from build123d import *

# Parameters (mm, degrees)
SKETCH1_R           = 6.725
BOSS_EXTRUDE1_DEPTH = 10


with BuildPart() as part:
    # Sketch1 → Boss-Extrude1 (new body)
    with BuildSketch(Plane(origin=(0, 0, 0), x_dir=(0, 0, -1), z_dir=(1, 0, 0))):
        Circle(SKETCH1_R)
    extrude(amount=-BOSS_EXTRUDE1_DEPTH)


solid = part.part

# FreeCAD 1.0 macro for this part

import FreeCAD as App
import Part
import Sketcher

V = App.Vector

doc = App.newDocument("Part")
body = doc.addObject("PartDesign::Body", "Body")

sketch1 = body.newObject("Sketcher::SketchObject", "Sketch")
sketch1.AttachmentSupport = (doc.getObject("YZ_Plane"), [""])
sketch1.MapMode = "FlatFace"
sketch1.addGeometry(Part.Circle(V(0, 0, 0), V(0, 0, 1), 7), False)
sketch1.addConstraint([
    Sketcher.Constraint("Coincident", 0, 3, -1, 1),
    Sketcher.Constraint("Diameter", 0, 13.45),
])
pad1 = body.newObject("PartDesign::Pad", "Pad")
pad1.Profile = sketch1
pad1.Length = 10
pad1.Reversed = True

doc.recompute()
